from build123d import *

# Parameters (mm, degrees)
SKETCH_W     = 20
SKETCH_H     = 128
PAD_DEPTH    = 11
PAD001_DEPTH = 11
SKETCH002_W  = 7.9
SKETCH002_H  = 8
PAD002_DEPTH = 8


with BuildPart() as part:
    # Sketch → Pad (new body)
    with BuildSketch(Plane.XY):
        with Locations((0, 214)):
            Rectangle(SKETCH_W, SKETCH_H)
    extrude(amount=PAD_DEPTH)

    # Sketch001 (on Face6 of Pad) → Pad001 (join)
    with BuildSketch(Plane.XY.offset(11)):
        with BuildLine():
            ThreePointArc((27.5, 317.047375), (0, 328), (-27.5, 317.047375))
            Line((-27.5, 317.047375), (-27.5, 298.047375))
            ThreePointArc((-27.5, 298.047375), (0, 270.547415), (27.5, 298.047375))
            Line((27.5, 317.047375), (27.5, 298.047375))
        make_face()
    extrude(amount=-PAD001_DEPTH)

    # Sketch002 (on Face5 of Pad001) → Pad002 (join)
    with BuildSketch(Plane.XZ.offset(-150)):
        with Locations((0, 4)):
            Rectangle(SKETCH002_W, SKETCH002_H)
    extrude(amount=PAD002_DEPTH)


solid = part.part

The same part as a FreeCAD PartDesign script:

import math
import FreeCAD as App
import Part
import Sketcher
from FreeCAD import Vector


def add_polygon(sketch, points):
    """Adds a closed chain of lines whose ends are joined by coincident constraints."""
    first, n = sketch.GeometryCount, len(points)
    for a, b in zip(points, points[1:] + points[:1]):
        sketch.addGeometry(Part.LineSegment(App.Vector(*a, 0), App.Vector(*b, 0)), False)
    for i in range(n):
        sketch.addConstraint(Sketcher.Constraint("Coincident", first + i, 2, first + (i + 1) % n, 1))

doc = App.newDocument("Part")
body = doc.addObject("PartDesign::Body", "Body")

# Sketch on XY plane
sketch1 = body.newObject("Sketcher::SketchObject", "Sketch")
sketch1.AttachmentSupport = (doc.getObject("XY_Plane"), [""])
sketch1.MapMode = "FlatFace"
add_polygon(sketch1, [(-10, 278), (-10, 150), (10, 150), (10, 278)])  # lines 0-3
sketch1.addConstraint(Sketcher.Constraint("Vertical", 0))
sketch1.addConstraint(Sketcher.Constraint("Horizontal", 1))
sketch1.addConstraint(Sketcher.Constraint("Vertical", 2))
sketch1.addConstraint(Sketcher.Constraint("Horizontal", 3))
sketch1.addConstraint(Sketcher.Constraint("DistanceX", 1, 1, 1, 2, 20.0))
sketch1.addConstraint(Sketcher.Constraint("DistanceY", 0, 2, 0, 1, 128.0))
sketch1.addConstraint(Sketcher.Constraint("DistanceX", 0, 2, -1, 1, 10.0))
sketch1.addConstraint(Sketcher.Constraint("DistanceY", -1, 1, 0, 2, 150.0))
pad1 = body.newObject("PartDesign::Pad", "Pad")
pad1.Profile = sketch1
pad1.Length = 11

# Sketch on XY plane
sketch2 = body.newObject("Sketcher::SketchObject", "Sketch001")
sketch2.AttachmentSupport = (doc.getObject("XY_Plane"), [""])
sketch2.MapMode = "FlatFace"
sketch2.AttachmentOffset = App.Placement(Vector(0, 0, 11), App.Rotation())
sketch2.addGeometry(Part.ArcOfCircle(Part.Circle(Vector(0, 288, 0), Vector(0, 0, 1), 40), math.radians(46.567463), math.radians(133.432537)), False)
sketch2.addGeometry(Part.LineSegment(Vector(-27.5, 317.047375, 0), Vector(-27.5, 298.047375, 0)), False)
sketch2.addGeometry(Part.ArcOfCircle(Part.Circle(Vector(0, 298.047415, 0), Vector(0, 0, 1), 27.5), math.radians(-179.999917), math.radians(-0.000083)), False)
sketch2.addGeometry(Part.LineSegment(Vector(27.5, 298.047375, 0), Vector(27.5, 317.047375, 0)), False)
sketch2.addConstraint(Sketcher.Constraint("Coincident", 0, 2, 1, 1))
sketch2.addConstraint(Sketcher.Constraint("Coincident", 1, 2, 2, 1))
sketch2.addConstraint(Sketcher.Constraint("Coincident", 2, 2, 3, 1))
sketch2.addConstraint(Sketcher.Constraint("Coincident", 3, 2, 0, 1))
sketch2.addConstraint(Sketcher.Constraint("Vertical", 1))
sketch2.addConstraint(Sketcher.Constraint("Vertical", 3))
sketch2.addConstraint(Sketcher.Constraint("PointOnObject", 0, 3, -2))
sketch2.addConstraint(Sketcher.Constraint("PointOnObject", 2, 3, -2))
sketch2.addConstraint(Sketcher.Constraint("Radius", 0, 40.0))
sketch2.addConstraint(Sketcher.Constraint("Radius", 2, 27.5))
sketch2.addConstraint(Sketcher.Constraint("DistanceY", 1, 2, 1, 1, 19.0))
sketch2.addConstraint(Sketcher.Constraint("DistanceY", 3, 1, 3, 2, 19.0))
sketch2.addConstraint(Sketcher.Constraint("DistanceY", -1, 1, 0, 3, 288.0))
sketch2.addConstraint(Sketcher.Constraint("DistanceY", 2, 3, 0, 2, 18.99996))
pad2 = body.newObject("PartDesign::Pad", "Pad001")
pad2.Profile = sketch2
pad2.Length = 11
pad2.Reversed = True

# Sketch on XZ plane
sketch3 = body.newObject("Sketcher::SketchObject", "Sketch002")
sketch3.AttachmentSupport = (doc.getObject("XZ_Plane"), [""])
sketch3.MapMode = "FlatFace"
sketch3.AttachmentOffset = App.Placement(Vector(0, 0, -150), App.Rotation())
add_polygon(sketch3, [(-4, 8), (-4, 0), (4, 0), (4, 8)])  # lines 0-3
sketch3.addConstraint(Sketcher.Constraint("Vertical", 0))
sketch3.addConstraint(Sketcher.Constraint("Horizontal", 1))
sketch3.addConstraint(Sketcher.Constraint("Vertical", 2))
sketch3.addConstraint(Sketcher.Constraint("Horizontal", 3))
sketch3.addConstraint(Sketcher.Constraint("Symmetric", 0, 2, 1, 2, -1, 1))
sketch3.addConstraint(Sketcher.Constraint("DistanceY", 0, 2, 0, 1, 8.0))
sketch3.addConstraint(Sketcher.Constraint("DistanceX", 1, 1, 1, 2, 7.9))
pad3 = body.newObject("PartDesign::Pad", "Pad002")
pad3.Profile = sketch3
pad3.Length = 8

doc.recompute()
